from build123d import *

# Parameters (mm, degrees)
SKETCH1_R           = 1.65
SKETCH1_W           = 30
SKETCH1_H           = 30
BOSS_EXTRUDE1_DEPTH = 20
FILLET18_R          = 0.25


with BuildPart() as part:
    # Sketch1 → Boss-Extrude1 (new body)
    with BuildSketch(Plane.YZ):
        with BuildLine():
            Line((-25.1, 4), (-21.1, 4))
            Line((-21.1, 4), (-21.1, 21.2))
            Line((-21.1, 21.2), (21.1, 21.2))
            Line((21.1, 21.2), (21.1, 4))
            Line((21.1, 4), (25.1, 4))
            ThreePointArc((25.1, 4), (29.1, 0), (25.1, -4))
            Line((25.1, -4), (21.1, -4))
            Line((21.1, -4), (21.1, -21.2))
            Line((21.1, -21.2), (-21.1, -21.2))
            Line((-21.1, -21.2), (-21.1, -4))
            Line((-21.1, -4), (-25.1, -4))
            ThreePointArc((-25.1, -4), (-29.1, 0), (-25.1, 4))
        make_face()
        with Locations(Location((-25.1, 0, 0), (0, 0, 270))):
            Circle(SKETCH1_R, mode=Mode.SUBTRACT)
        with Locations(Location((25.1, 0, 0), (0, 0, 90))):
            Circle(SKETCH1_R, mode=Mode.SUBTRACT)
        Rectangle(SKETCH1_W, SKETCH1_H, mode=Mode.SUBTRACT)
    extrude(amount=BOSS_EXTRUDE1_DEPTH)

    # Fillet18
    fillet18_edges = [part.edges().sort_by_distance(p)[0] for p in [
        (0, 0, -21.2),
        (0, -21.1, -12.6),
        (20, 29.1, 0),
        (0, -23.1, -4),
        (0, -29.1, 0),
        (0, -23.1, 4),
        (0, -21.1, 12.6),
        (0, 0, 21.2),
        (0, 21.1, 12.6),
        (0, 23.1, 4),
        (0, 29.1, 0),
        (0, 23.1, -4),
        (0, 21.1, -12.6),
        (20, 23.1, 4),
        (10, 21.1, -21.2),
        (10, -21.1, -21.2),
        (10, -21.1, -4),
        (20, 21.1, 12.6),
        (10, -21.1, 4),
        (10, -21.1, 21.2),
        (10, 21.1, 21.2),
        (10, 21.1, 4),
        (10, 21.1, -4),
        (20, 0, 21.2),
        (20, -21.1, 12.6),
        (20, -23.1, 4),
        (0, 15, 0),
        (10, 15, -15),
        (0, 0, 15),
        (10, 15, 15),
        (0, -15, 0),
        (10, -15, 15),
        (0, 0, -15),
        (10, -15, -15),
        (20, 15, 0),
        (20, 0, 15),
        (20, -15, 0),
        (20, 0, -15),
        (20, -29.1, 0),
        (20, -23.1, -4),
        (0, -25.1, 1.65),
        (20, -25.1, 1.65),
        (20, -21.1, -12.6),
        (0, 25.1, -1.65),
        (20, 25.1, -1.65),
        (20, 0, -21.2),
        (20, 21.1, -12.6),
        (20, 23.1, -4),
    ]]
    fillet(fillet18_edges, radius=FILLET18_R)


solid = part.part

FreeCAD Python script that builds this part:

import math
import FreeCAD as App
import Part
import Sketcher

V = App.Vector
Q = App.Units.Quantity

doc = App.newDocument("Part")
body = doc.addObject("PartDesign::Body", "Body")

# Sketch on YZ plane
sketch1 = body.newObject("Sketcher::SketchObject", "Sketch")
sketch1.AttachmentSupport = (doc.getObject("YZ_Plane"), [""])
sketch1.MapMode = "FlatFace"
sketch1.addGeometry([
    Part.LineSegment(V(-21.1, 4, 0), V(-25.1, 4, 0)),  # 0
    Part.ArcOfCircle(Part.Circle(V(-25.1, 0, 0), V(0, 0, 1), 4), math.radians(90), math.radians(270)),  # 1
    Part.LineSegment(V(-25.1, -4, 0), V(-21.1, -4, 0)),  # 2
    Part.LineSegment(V(-21.1, -4, 0), V(-21.1, -21.2, 0)),  # 3
    Part.LineSegment(V(-21.1, -21.2, 0), V(21.1, -21.2, 0)),  # 4
    Part.LineSegment(V(21.1, -21.2, 0), V(21.1, -4, 0)),  # 5
    Part.LineSegment(V(21.1, -4, 0), V(25.1, -4, 0)),  # 6
    Part.ArcOfCircle(Part.Circle(V(25.1, 0, 0), V(0, 0, 1), 4), math.radians(-90), math.radians(90)),  # 7
    Part.LineSegment(V(25.1, 4, 0), V(21.1, 4, 0)),  # 8
    Part.LineSegment(V(21.1, 4, 0), V(21.1, 21.2, 0)),  # 9
    Part.LineSegment(V(21.1, 21.2, 0), V(-21.1, 21.2, 0)),  # 10
    Part.LineSegment(V(-21.1, 21.2, 0), V(-21.1, 4, 0)),  # 11
    Part.Circle(V(25.1, 0, 0), V(0, 0, 1), 1.6),  # 12
    Part.LineSegment(V(-15, -15, 0), V(-15, 15, 0)),  # 13
    Part.LineSegment(V(-15, 15, 0), V(15, 15, 0)),  # 14
    Part.LineSegment(V(15, 15, 0), V(15, -15, 0)),  # 15
    Part.LineSegment(V(15, -15, 0), V(-15, -15, 0)),  # 16
    Part.Circle(V(-25.1, 0, 0), V(0, 0, 1), 1.6),  # 17
], False)
sketch1.addConstraint([
    Sketcher.Constraint("Tangent", 0, 2, 1, 1),
    Sketcher.Constraint("Tangent", 1, 2, 2, 1),
    Sketcher.Constraint("Coincident", 2, 2, 3, 1),
    Sketcher.Constraint("Coincident", 3, 2, 4, 1),
    Sketcher.Constraint("Coincident", 4, 2, 5, 1),
    Sketcher.Constraint("Coincident", 5, 2, 6, 1),
    Sketcher.Constraint("Tangent", 6, 2, 7, 1),
    Sketcher.Constraint("Tangent", 7, 2, 8, 1),
    Sketcher.Constraint("Coincident", 8, 2, 9, 1),
    Sketcher.Constraint("Coincident", 9, 2, 10, 1),
    Sketcher.Constraint("Coincident", 10, 2, 11, 1),
    Sketcher.Constraint("Coincident", 11, 2, 0, 1),
    Sketcher.Constraint("Coincident", 13, 2, 14, 1),
    Sketcher.Constraint("Coincident", 14, 2, 15, 1),
    Sketcher.Constraint("Coincident", 15, 2, 16, 1),
    Sketcher.Constraint("Coincident", 16, 2, 13, 1),
    Sketcher.Constraint("Horizontal", 0),
    Sketcher.Constraint("Horizontal", 2),
    Sketcher.Constraint("Vertical", 3),
    Sketcher.Constraint("Horizontal", 4),
    Sketcher.Constraint("Vertical", 5),
    Sketcher.Constraint("Horizontal", 6),
    Sketcher.Constraint("Horizontal", 8),
    Sketcher.Constraint("Vertical", 9),
    Sketcher.Constraint("Horizontal", 10),
    Sketcher.Constraint("Vertical", 11),
    Sketcher.Constraint("Vertical", 13),
    Sketcher.Constraint("Horizontal", 14),
    Sketcher.Constraint("Vertical", 15),
    Sketcher.Constraint("Horizontal", 16),
    Sketcher.Constraint("Coincident", 12, 3, 7, 3),
    Sketcher.Constraint("Coincident", 17, 3, 1, 3),
    Sketcher.Constraint("Equal", 1, 7),
    Sketcher.Constraint("Equal", 12, 17),
    Sketcher.Constraint("Symmetric", 1, 3, 7, 3, -1, 1),
    Sketcher.Constraint("Symmetric", 3, 2, 9, 2, -1, 1),
    Sketcher.Constraint("Symmetric", 13, 2, 15, 2, -1, 1),
    Sketcher.Constraint("Symmetric", 2, 2, 5, 2, -2),
    Sketcher.Constraint("Vertical", 3, 2, 10, 2),
    Sketcher.Constraint("Equal", 16, 13),
    Sketcher.Constraint("Radius", 1, Q("4 mm")),
    Sketcher.Constraint("Diameter", 12, Q("3.3 mm")),
    Sketcher.Constraint("DistanceX", 0, 2, 0, 1, Q("4 mm")),
    Sketcher.Constraint("DistanceX", 14, 1, 14, 2, Q("30 mm")),
    Sketcher.Constraint("DistanceX", 4, 1, 4, 2, Q("42.2 mm")),
    Sketcher.Constraint("DistanceY", 3, 2, 3, 1, Q("17.2 mm")),
])
pad1 = body.newObject("PartDesign::Pad", "Pad")
pad1.Profile = sketch1
pad1.Length = 20
doc.recompute()

fillet = body.newObject("PartDesign::Fillet", "Fillet")
fillet.Base = (pad1, ["Edge1"])
fillet.UseAllEdges = True
fillet.Radius = 0.25

doc.recompute()
